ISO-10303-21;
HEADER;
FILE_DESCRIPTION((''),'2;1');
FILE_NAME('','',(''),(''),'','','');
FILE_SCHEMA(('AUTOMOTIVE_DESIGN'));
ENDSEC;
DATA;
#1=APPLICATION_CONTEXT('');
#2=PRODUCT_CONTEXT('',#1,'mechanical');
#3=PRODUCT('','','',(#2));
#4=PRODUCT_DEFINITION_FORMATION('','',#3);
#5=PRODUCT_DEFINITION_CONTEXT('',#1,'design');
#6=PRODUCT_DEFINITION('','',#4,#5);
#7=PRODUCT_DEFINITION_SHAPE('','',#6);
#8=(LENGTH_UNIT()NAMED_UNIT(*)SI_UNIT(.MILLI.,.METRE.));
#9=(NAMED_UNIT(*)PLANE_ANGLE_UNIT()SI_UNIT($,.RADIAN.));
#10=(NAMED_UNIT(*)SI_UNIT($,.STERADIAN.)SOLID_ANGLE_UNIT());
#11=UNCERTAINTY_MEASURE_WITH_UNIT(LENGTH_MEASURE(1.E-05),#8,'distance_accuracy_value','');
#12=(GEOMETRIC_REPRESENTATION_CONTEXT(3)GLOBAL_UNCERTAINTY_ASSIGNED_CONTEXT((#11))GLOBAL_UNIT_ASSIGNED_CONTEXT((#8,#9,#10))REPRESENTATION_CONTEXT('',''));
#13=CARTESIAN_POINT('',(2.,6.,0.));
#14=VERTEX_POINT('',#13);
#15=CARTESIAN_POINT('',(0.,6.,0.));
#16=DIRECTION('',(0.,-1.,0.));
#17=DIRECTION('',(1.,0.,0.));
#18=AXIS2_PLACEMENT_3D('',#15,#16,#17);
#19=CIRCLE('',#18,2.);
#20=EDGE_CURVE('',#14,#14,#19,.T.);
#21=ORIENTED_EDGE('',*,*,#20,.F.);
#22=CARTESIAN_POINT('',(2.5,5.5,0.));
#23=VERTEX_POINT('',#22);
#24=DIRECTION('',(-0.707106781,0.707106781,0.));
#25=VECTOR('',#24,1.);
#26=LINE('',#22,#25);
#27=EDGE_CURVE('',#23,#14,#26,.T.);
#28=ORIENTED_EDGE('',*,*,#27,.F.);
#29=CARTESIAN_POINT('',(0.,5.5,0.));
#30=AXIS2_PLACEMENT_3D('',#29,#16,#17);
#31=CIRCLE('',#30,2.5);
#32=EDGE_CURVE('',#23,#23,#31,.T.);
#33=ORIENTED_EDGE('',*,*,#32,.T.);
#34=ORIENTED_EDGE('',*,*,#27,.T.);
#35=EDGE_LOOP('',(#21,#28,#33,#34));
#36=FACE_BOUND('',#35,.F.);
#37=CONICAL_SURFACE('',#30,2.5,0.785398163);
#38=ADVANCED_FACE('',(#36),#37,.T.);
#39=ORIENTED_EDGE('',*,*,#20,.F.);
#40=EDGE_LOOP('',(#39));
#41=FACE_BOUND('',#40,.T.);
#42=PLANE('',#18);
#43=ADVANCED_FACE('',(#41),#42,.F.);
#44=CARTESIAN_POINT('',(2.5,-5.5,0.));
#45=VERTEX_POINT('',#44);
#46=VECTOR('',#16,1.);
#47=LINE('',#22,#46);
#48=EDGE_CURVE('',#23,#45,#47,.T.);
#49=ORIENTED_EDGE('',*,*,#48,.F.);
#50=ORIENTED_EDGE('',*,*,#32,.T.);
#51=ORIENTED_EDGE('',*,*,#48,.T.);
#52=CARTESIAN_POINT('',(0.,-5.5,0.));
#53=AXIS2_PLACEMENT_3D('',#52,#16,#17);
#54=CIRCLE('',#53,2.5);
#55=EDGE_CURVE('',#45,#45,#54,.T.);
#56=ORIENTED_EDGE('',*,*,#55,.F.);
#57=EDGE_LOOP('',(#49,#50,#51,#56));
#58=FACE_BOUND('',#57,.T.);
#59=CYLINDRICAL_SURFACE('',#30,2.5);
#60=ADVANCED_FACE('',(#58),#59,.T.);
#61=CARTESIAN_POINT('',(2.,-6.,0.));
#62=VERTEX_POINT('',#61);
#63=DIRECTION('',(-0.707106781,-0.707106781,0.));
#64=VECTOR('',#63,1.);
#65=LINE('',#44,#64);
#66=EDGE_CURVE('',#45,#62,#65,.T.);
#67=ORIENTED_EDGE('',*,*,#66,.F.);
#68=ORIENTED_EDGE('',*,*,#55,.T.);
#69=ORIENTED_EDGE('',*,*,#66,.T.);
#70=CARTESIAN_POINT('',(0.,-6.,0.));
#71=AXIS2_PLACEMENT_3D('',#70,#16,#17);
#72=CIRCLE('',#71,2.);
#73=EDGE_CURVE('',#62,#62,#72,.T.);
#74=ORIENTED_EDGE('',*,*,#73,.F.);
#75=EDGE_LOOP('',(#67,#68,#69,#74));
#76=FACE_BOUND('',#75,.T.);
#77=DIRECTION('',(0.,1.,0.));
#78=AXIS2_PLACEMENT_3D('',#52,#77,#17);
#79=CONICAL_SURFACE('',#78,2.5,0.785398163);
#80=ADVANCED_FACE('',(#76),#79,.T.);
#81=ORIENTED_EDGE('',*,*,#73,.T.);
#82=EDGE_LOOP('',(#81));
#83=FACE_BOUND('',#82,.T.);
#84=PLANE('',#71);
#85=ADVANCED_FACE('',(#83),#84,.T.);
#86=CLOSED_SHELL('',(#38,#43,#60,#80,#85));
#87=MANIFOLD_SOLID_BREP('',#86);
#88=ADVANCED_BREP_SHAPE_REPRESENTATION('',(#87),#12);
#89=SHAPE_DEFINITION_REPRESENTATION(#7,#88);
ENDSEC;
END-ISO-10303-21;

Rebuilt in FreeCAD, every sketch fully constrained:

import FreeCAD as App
import Part
import Sketcher
from FreeCAD import Vector

doc = App.newDocument("Part")
body = doc.addObject("PartDesign::Body", "Body")

# Sketch on XY plane
sketch1 = doc.addObject("Sketcher::SketchObject", "Sketch")
body.addObject(sketch1)
sketch1.AttachmentSupport = (doc.XY_Plane, [""])
sketch1.MapMode = "FlatFace"
sketch1.addGeometry([
    Part.LineSegment(Vector(2, 6, 0), Vector(0, 6, 0)),  # 0
    Part.LineSegment(Vector(0, 6, 0), Vector(0, -6, 0)),  # 1
    Part.LineSegment(Vector(0, -6, 0), Vector(2, -6, 0)),  # 2
    Part.LineSegment(Vector(2, -6, 0), Vector(2.5, -5.5, 0)),  # 3
    Part.LineSegment(Vector(2.5, -5.5, 0), Vector(2.5, 5.5, 0)),  # 4
    Part.LineSegment(Vector(2.5, 5.5, 0), Vector(2, 6, 0)),  # 5
], False)
sketch1.addConstraint([
    Sketcher.Constraint("Coincident", 0, 2, 1, 1),
    Sketcher.Constraint("Coincident", 1, 2, 2, 1),
    Sketcher.Constraint("Coincident", 2, 2, 3, 1),
    Sketcher.Constraint("Coincident", 3, 2, 4, 1),
    Sketcher.Constraint("Coincident", 4, 2, 5, 1),
    Sketcher.Constraint("Coincident", 5, 2, 0, 1),
    Sketcher.Constraint("Horizontal", 0),
    Sketcher.Constraint("Vertical", 1),
    Sketcher.Constraint("Horizontal", 2),
    Sketcher.Constraint("Vertical", 4),
    Sketcher.Constraint("Symmetric", 0, 2, 1, 2, -1, 1),
    Sketcher.Constraint("Perpendicular", 3, 5),
    Sketcher.Constraint("Vertical", 2, 2, 5, 2),
    Sketcher.Constraint("Equal", 3, 5),
    Sketcher.Constraint("DistanceY", 1, 2, 1, 1, 12.0),
    Sketcher.Constraint("DistanceX", 2, 2, 3, 2, 0.5),
    Sketcher.Constraint("DistanceX", 0, 2, 0, 1, 2.0),
])
revolution = doc.addObject("PartDesign::Revolution", "Revolution")
body.addObject(revolution)
revolution.Profile = sketch1
revolution.ReferenceAxis = (sketch1, ["V_Axis"])
revolution.Angle = 360

doc.recompute()
